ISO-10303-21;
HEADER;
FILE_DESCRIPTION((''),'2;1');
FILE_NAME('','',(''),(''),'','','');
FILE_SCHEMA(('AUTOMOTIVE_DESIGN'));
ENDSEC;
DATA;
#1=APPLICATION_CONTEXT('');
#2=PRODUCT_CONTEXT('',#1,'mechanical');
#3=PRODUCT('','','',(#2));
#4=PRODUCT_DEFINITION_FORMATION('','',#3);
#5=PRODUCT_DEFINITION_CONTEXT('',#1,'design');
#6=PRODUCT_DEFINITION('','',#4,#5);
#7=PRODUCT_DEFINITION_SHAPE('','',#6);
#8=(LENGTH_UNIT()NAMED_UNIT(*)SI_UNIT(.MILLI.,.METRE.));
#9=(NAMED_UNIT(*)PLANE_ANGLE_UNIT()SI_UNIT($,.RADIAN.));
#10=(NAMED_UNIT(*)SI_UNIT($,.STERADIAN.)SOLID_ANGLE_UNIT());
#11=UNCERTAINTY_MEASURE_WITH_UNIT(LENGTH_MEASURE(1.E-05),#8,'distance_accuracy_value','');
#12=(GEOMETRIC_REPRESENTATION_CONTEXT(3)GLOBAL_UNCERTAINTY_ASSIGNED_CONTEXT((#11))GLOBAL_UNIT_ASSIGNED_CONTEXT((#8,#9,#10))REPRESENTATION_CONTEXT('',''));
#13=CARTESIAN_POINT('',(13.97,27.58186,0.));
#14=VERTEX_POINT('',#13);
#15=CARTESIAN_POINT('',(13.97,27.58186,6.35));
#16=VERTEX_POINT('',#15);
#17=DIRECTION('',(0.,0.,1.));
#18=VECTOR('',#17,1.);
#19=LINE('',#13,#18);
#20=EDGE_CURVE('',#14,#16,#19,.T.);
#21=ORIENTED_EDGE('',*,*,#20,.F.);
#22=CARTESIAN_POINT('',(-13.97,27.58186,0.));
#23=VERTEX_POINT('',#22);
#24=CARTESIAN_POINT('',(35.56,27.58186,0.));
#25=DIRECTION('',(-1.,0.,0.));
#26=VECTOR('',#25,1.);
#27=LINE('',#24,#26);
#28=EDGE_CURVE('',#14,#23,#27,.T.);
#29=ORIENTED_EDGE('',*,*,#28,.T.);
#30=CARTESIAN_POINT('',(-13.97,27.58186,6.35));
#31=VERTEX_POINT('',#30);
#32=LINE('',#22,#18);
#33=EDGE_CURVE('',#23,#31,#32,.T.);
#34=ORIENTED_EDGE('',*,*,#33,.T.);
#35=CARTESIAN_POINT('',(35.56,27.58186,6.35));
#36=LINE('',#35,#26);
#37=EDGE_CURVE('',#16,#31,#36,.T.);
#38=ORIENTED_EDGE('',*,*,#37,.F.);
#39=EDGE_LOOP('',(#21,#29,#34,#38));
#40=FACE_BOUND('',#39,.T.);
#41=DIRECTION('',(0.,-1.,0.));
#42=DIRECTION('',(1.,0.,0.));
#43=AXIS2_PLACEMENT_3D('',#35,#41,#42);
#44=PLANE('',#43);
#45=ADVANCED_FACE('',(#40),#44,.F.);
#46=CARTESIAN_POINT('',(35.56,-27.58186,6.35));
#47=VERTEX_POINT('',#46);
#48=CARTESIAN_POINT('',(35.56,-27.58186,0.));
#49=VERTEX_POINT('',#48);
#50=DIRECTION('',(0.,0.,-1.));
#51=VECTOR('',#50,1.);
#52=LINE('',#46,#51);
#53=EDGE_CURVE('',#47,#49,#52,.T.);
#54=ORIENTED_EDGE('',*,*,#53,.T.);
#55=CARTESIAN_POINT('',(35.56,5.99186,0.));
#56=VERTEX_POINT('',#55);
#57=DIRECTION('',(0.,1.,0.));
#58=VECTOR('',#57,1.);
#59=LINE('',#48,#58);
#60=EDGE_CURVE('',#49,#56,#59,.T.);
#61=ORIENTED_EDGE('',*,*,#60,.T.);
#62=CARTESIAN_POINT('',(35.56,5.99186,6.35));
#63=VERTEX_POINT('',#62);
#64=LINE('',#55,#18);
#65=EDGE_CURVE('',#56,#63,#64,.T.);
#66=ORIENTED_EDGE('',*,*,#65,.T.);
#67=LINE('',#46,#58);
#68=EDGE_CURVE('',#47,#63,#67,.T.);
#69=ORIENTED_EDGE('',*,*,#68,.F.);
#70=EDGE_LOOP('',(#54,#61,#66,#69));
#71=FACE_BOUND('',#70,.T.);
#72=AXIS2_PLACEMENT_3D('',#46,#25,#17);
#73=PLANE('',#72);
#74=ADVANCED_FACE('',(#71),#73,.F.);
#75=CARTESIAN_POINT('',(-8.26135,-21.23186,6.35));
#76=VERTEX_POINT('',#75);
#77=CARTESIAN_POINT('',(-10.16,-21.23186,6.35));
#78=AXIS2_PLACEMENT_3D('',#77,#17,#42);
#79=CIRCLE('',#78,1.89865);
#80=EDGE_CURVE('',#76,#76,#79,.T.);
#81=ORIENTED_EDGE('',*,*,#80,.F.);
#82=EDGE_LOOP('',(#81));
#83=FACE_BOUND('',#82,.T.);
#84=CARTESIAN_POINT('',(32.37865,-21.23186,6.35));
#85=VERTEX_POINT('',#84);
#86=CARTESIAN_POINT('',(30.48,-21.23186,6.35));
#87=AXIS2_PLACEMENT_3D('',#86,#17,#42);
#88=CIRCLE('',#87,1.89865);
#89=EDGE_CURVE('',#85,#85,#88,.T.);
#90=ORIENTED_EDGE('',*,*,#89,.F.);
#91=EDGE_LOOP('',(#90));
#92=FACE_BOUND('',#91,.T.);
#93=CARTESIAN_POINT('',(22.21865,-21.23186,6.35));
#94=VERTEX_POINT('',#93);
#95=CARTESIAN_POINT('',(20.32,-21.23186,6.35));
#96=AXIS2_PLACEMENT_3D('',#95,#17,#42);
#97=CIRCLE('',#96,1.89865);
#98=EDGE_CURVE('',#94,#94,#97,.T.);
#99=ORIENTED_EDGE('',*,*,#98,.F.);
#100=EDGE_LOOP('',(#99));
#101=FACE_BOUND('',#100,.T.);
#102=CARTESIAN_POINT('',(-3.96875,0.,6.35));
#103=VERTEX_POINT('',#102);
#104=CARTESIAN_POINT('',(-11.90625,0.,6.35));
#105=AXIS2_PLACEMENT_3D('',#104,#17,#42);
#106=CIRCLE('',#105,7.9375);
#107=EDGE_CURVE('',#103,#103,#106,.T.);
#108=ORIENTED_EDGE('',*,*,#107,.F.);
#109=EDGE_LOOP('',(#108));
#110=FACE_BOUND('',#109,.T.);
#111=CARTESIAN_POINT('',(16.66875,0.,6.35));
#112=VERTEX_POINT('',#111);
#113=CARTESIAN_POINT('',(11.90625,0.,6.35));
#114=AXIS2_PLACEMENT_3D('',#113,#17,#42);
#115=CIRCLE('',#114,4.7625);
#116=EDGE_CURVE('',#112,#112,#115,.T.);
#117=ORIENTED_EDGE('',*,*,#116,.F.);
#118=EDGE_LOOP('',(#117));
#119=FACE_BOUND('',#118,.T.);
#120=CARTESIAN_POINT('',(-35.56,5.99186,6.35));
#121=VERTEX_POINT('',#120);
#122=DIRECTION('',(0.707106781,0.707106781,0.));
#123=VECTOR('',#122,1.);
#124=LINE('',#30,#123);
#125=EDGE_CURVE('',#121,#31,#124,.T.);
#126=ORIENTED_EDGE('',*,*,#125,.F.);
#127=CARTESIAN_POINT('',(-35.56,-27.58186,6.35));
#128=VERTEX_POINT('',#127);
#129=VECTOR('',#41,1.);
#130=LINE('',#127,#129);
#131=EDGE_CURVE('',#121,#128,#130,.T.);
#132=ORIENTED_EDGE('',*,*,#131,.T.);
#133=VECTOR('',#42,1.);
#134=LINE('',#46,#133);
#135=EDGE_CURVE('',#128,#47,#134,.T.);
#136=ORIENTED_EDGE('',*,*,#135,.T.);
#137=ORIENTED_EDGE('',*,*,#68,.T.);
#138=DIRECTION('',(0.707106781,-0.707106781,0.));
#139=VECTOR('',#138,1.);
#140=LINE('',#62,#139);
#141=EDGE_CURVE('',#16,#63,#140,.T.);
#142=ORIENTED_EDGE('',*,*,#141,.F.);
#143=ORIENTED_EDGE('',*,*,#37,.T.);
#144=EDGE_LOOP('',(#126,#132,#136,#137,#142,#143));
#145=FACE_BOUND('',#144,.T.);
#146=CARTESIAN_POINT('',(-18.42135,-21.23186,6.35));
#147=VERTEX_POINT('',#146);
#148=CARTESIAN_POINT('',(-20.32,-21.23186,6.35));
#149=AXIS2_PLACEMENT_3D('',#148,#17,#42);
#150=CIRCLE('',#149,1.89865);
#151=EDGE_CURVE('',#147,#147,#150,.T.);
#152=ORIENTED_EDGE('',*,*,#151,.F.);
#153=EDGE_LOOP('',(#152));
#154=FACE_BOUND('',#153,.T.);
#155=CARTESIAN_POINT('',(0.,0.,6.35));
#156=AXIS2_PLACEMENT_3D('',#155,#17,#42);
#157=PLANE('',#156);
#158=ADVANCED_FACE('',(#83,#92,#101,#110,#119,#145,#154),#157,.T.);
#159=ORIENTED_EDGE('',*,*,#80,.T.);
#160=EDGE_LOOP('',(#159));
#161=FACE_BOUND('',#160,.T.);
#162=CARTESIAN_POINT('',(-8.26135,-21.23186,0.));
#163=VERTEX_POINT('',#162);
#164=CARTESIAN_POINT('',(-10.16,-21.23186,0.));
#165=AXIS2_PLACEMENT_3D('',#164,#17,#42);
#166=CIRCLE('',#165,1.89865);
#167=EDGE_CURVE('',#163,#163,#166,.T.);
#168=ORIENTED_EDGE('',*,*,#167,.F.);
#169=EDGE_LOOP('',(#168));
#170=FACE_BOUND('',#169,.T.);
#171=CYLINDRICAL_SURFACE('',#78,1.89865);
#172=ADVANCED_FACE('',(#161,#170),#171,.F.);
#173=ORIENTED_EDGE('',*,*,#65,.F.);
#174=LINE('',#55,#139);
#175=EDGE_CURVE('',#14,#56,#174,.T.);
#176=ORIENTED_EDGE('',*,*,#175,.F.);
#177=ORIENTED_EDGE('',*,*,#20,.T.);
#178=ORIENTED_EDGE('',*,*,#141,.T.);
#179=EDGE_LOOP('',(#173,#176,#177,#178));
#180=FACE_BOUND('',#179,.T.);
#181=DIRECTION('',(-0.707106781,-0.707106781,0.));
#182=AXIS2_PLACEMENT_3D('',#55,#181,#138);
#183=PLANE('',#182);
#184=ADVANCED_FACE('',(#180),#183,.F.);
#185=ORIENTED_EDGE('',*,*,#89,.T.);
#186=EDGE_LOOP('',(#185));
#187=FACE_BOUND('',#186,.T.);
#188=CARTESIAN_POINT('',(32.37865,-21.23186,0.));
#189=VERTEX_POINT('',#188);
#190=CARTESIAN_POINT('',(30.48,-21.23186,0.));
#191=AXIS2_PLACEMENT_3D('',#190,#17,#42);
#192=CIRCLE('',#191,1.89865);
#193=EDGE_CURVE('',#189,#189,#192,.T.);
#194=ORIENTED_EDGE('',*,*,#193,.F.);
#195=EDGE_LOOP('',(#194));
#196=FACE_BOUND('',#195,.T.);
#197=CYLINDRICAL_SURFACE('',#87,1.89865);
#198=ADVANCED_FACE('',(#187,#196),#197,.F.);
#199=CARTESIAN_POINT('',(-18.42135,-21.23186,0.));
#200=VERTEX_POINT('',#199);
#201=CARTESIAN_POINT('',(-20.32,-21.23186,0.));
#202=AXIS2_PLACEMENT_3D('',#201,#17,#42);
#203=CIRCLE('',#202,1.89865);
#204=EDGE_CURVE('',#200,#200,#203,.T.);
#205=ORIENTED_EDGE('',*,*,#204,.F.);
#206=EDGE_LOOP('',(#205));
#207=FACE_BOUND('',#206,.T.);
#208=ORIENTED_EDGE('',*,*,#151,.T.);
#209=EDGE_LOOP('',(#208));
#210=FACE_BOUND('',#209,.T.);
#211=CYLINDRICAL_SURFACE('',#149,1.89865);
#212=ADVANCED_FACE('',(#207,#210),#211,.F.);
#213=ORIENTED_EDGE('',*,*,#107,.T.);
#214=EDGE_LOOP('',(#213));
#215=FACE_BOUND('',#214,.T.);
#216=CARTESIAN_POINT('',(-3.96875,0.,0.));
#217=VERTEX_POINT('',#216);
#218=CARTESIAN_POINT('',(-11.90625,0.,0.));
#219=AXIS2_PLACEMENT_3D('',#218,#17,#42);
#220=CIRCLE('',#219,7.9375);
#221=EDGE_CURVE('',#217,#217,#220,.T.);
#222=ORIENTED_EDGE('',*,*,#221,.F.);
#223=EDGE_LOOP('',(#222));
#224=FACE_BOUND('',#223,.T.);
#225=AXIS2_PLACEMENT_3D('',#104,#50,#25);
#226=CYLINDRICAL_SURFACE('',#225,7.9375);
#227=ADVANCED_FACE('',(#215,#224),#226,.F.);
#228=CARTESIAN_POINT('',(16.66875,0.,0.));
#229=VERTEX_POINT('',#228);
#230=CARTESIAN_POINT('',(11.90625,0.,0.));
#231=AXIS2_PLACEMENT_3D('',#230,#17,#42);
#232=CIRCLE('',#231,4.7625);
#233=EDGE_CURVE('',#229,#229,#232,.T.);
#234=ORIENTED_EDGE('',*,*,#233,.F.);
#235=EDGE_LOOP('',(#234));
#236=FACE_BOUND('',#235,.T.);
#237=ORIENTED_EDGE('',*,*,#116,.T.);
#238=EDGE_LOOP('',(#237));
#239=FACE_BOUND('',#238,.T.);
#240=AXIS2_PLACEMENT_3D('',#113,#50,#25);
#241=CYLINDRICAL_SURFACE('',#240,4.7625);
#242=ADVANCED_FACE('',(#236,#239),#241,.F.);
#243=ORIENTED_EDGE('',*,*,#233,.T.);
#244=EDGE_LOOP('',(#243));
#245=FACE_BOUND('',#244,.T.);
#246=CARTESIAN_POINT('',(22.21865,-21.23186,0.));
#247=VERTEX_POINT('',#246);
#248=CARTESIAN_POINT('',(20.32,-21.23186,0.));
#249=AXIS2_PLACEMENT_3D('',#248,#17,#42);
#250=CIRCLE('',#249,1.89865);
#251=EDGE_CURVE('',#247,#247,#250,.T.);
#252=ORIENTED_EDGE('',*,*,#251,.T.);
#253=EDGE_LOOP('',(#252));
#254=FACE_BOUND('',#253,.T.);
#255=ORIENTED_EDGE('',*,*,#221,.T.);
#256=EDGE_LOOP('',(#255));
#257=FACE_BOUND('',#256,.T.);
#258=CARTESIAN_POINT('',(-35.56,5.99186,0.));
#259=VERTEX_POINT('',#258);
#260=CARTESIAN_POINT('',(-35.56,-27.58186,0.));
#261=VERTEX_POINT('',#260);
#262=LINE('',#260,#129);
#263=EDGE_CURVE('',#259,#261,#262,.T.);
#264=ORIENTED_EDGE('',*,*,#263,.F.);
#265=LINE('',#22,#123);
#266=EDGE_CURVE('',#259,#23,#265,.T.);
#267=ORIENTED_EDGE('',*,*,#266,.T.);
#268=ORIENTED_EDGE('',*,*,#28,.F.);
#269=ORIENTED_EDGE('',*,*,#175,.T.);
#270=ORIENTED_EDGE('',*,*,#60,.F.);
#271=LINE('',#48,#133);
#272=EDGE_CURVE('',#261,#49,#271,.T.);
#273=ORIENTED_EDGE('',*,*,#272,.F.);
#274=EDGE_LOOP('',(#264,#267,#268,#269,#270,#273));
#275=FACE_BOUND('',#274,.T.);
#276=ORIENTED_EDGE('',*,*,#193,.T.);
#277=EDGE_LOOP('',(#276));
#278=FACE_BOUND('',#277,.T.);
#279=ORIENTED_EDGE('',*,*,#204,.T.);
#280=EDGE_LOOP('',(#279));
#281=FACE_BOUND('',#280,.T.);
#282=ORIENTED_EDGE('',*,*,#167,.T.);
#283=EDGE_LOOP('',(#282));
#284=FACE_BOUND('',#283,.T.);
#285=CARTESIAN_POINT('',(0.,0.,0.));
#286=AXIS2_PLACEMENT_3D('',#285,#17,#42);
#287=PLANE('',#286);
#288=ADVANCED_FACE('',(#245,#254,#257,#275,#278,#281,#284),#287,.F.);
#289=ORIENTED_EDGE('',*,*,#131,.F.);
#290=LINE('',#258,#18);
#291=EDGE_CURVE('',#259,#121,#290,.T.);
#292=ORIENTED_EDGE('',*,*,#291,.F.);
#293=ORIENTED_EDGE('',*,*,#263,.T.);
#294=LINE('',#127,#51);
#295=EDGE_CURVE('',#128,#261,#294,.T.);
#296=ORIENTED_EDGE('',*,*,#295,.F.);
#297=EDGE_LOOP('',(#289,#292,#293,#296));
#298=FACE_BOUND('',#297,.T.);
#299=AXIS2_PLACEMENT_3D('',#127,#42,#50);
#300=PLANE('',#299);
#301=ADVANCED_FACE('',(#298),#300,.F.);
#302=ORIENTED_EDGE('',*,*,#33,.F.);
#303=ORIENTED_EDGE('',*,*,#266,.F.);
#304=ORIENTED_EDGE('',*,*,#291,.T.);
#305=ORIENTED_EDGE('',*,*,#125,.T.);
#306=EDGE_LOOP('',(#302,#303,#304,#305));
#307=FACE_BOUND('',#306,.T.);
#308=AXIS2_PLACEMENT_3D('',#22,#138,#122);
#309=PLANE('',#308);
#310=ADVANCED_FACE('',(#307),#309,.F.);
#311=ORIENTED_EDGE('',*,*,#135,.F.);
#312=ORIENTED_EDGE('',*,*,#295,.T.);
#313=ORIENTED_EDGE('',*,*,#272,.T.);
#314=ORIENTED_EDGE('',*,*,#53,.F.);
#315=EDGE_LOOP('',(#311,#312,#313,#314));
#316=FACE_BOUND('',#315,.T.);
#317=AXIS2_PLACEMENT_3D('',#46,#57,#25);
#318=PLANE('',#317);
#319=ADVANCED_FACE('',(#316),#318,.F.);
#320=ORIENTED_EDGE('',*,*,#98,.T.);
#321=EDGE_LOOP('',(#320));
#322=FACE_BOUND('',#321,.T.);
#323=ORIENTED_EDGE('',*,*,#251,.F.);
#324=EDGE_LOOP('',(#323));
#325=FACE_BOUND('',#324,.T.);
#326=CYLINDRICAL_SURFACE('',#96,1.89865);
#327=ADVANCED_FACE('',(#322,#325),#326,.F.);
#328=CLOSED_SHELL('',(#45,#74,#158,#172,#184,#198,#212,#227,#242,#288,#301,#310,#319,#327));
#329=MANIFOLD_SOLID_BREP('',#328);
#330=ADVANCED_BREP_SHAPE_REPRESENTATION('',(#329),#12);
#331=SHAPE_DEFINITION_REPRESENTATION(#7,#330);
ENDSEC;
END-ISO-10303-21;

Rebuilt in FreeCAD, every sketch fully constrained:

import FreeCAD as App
import Part
import Sketcher
Q = App.Units.Quantity

doc = App.newDocument("Part")
params = doc.addObject("Spreadsheet::Sheet", "Params")
for row, (alias, value) in enumerate([
    ("sketch1_diameter", "0.625 in"),
    ("sketch1_diameter2", "0.375 in"),
    ("sketch1_width", "2.8 in"),
    ("pad1_length", "0.25 in"),
    ("hole_diameter", "0.1495 in"),
    ("sketch3_width", "0.85 in"),
], start=1):
    params.set(f"A{row}", alias)
    params.set(f"B{row}", "=" + value)
    params.setAlias(f"B{row}", alias)

body = doc.addObject("PartDesign::Body", "Body")

sketch1 = body.newObject("Sketcher::SketchObject", "Sketch")
sketch1.AttachmentSupport = (doc.getObject("XY_Plane"), [""])
sketch1.MapMode = "FlatFace"
sketch1.addGeometry([
    Part.LineSegment(App.Vector(-35.6, 27.6, 0), App.Vector(-35.6, -27.6, 0)),
    Part.LineSegment(App.Vector(-35.6, -27.6, 0), App.Vector(35.6, -27.6, 0)),
    Part.LineSegment(App.Vector(35.6, -27.6, 0), App.Vector(35.6, 27.6, 0)),
    Part.LineSegment(App.Vector(35.6, 27.6, 0), App.Vector(-35.6, 27.6, 0)),
    Part.Circle(App.Vector(-11.9, 0, 0), App.Vector(0, 0, 1), 7.9),
    Part.Circle(App.Vector(11.9, 0, 0), App.Vector(0, 0, 1), 4.8),
], False)
sketch1.addConstraint([
    Sketcher.Constraint("Coincident", 0, 2, 1, 1),
    Sketcher.Constraint("Coincident", 1, 2, 2, 1),
    Sketcher.Constraint("Coincident", 2, 2, 3, 1),
    Sketcher.Constraint("Coincident", 3, 2, 0, 1),
    Sketcher.Constraint("Vertical", 0),
    Sketcher.Constraint("Horizontal", 1),
    Sketcher.Constraint("Vertical", 2),
    Sketcher.Constraint("Horizontal", 3),
    Sketcher.Constraint("Symmetric", 4, 3, 5, 3, -1, 1),
    Sketcher.Constraint("Symmetric", 0, 2, 2, 2, -1, 1),
    Sketcher.Constraint("PointOnObject", 4, 3, -1),
    Sketcher.Constraint("Diameter", 4, Q("0.625 in")),
    Sketcher.Constraint("Diameter", 5, Q("0.375 in")),
    Sketcher.Constraint("DistanceX", 1, 1, 1, 2, Q("2.8 in")),
    Sketcher.Constraint("DistanceY", 0, 2, 0, 1, Q("2.1718 in")),
    Sketcher.Constraint("DistanceX", 4, 3, -1, 1, Q("0.46875 in")),
])
sketch1.setExpression("Constraints[11]", "Params.sketch1_diameter")
sketch1.setExpression("Constraints[12]", "Params.sketch1_diameter2")
sketch1.setExpression("Constraints[13]", "Params.sketch1_width")
pad1 = body.newObject("PartDesign::Pad", "Pad")
pad1.Profile = sketch1
pad1.setExpression("Length", "Params.pad1_length")

sketch2 = body.newObject("Sketcher::SketchObject", "Sketch001")
sketch2.AttachmentSupport = (doc.getObject("XY_Plane"), [""])
sketch2.MapMode = "FlatFace"
sketch2.AttachmentOffset = App.Placement(App.Vector(0, 0, 0.25 * 25.4), App.Rotation())
sketch2.addGeometry([
    Part.Circle(App.Vector(-20.3, -21.2, 0), App.Vector(0, 0, 1), 1.9),
    Part.Circle(App.Vector(-10.2, -21.2, 0), App.Vector(0, 0, 1), 1.9),
    Part.Circle(App.Vector(20.3, -21.2, 0), App.Vector(0, 0, 1), 1.9),
    Part.Circle(App.Vector(30.5, -21.2, 0), App.Vector(0, 0, 1), 1.9),
], False)
sketch2.addConstraint([
    Sketcher.Constraint("Equal", 0, 1),
    Sketcher.Constraint("Equal", 1, 2),
    Sketcher.Constraint("Equal", 2, 3),
    Sketcher.Constraint("Symmetric", 0, 3, 2, 3, -2),
    Sketcher.Constraint("Horizontal", 0, 3, 1, 3),
    Sketcher.Constraint("Horizontal", 2, 3, 3, 3),
    Sketcher.Constraint("DistanceX", 0, 3, 3, 3, Q("2 in")),
    Sketcher.Constraint("Diameter", 0, Q("0.1495 in")),
    Sketcher.Constraint("DistanceX", 0, 3, -1, 1, Q("0.8 in")),
    Sketcher.Constraint("DistanceX", 1, 3, -1, 1, Q("0.4 in")),
    Sketcher.Constraint("DistanceY", 0, 3, -1, 1, Q("0.8359 in")),
])
doc.recompute()
hole = body.newObject("PartDesign::Hole", "Hole")
hole.Profile = sketch2
hole.ThreadType = "None"
hole.setExpression("Diameter", "Params.hole_diameter")
hole.DepthType = "ThroughAll"

sketch3 = body.newObject("Sketcher::SketchObject", "Sketch002")
sketch3.AttachmentSupport = (doc.getObject("XY_Plane"), [""])
sketch3.MapMode = "FlatFace"
sketch3.AttachmentOffset = App.Placement(App.Vector(0, 0, 0.25 * 25.4), App.Rotation())
sketch3.addGeometry([
    Part.LineSegment(App.Vector(-36, 28, 0), App.Vector(-36, 6, 0)),
    Part.LineSegment(App.Vector(-36, 6, 0), App.Vector(-14, 28, 0)),
    Part.LineSegment(App.Vector(-14, 28, 0), App.Vector(-36, 28, 0)),
    Part.LineSegment(App.Vector(36, 28, 0), App.Vector(14, 28, 0)),
    Part.LineSegment(App.Vector(14, 28, 0), App.Vector(36, 6, 0)),
    Part.LineSegment(App.Vector(36, 6, 0), App.Vector(36, 28, 0)),
], False)
sketch3.addConstraint([
    Sketcher.Constraint("Coincident", 0, 2, 1, 1),
    Sketcher.Constraint("Coincident", 1, 2, 2, 1),
    Sketcher.Constraint("Coincident", 2, 2, 0, 1),
    Sketcher.Constraint("Coincident", 3, 2, 4, 1),
    Sketcher.Constraint("Coincident", 4, 2, 5, 1),
    Sketcher.Constraint("Coincident", 5, 2, 3, 1),
    Sketcher.Constraint("Vertical", 0),
    Sketcher.Constraint("Horizontal", 2),
    Sketcher.Constraint("Horizontal", 3),
    Sketcher.Constraint("Vertical", 5),
    Sketcher.Constraint("Symmetric", 1, 2, 3, 2, -2),
    Sketcher.Constraint("Symmetric", 0, 2, 4, 2, -2),
    Sketcher.Constraint("Perpendicular", 1, 4),
    Sketcher.Constraint("DistanceX", 2, 2, 2, 1, Q("0.85 in")),
    Sketcher.Constraint("DistanceX", 0, 2, -1, 1, Q("1.4 in")),
    Sketcher.Constraint("DistanceY", -1, 1, 0, 2, Q("0.2359 in")),
])
sketch3.setExpression("Constraints[13]", "Params.sketch3_width")
pocket1 = body.newObject("PartDesign::Pocket", "Pocket")
pocket1.Profile = sketch3
pocket1.Type = "ThroughAll"

doc.recompute()
